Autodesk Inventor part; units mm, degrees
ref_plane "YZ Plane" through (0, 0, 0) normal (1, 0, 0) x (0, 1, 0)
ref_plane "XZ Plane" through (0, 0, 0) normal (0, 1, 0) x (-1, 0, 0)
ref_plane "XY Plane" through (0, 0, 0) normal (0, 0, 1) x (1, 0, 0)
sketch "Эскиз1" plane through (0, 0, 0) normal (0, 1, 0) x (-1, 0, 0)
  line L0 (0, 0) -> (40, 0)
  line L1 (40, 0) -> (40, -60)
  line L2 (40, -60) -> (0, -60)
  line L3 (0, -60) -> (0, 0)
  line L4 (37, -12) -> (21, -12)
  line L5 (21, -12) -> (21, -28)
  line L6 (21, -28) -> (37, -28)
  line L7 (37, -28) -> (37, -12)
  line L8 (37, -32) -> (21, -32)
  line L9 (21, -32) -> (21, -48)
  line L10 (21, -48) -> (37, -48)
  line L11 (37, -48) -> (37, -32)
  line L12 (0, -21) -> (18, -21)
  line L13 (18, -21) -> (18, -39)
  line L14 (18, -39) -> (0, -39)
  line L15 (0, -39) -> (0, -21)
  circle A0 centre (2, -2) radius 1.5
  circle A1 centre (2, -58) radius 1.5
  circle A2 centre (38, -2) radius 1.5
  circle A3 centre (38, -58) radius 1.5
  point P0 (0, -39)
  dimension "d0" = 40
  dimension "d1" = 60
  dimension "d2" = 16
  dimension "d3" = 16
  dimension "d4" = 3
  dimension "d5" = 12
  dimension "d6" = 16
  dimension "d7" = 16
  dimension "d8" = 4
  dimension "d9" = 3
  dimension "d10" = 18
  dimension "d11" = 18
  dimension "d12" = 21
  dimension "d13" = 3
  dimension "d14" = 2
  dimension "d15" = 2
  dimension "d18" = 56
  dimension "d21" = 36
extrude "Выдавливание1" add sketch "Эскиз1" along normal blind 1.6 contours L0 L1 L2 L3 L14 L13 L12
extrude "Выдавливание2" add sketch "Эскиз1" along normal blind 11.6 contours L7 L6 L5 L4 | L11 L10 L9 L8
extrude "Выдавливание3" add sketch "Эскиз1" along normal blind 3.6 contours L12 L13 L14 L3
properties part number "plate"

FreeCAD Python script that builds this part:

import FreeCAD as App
import Part
import Sketcher
from FreeCAD import Vector
Q = App.Units.Quantity


def add_polygon(sketch, points):
    """Adds a closed chain of lines whose ends are joined by coincident constraints."""
    first, n = sketch.GeometryCount, len(points)
    for a, b in zip(points, points[1:] + points[:1]):
        sketch.addGeometry(Part.LineSegment(App.Vector(*a, 0), App.Vector(*b, 0)), False)
    for i in range(n):
        sketch.addConstraint(Sketcher.Constraint("Coincident", first + i, 2, first + (i + 1) % n, 1))

doc = App.newDocument("Part")
body = doc.addObject("PartDesign::Body", "Body")

# Sketch on XZ plane
sketch1 = doc.addObject("Sketcher::SketchObject", "Sketch")
body.addObject(sketch1)
sketch1.AttachmentSupport = (doc.XZ_Plane, [""])
sketch1.MapMode = "FlatFace"
add_polygon(sketch1, [(-40, 0), (0, 0), (0, -21), (-18, -21), (-18, -39), (0, -39), (0, -60), (-40, -60)])  # lines 0-7
sketch1.addGeometry(Part.Circle(Vector(-2, -58, 0), Vector(0, 0, 1), 1.5), False)  # 8
sketch1.addGeometry(Part.Circle(Vector(-38, -58, 0), Vector(0, 0, 1), 1.5), False)  # 9
add_polygon(sketch1, [(-21, -32), (-37, -32), (-37, -48), (-21, -48)])  # lines 10-13
sketch1.addGeometry(Part.Circle(Vector(-2, -2, 0), Vector(0, 0, 1), 1.5), False)  # 14
add_polygon(sketch1, [(-21, -12), (-37, -12), (-37, -28), (-21, -28)])  # lines 15-18
sketch1.addGeometry(Part.Circle(Vector(-38, -2, 0), Vector(0, 0, 1), 1.5), False)  # 19
sketch1.addConstraint([
    Sketcher.Constraint("Horizontal", 0),
    Sketcher.Constraint("Vertical", 1),
    Sketcher.Constraint("Horizontal", 2),
    Sketcher.Constraint("Vertical", 3),
    Sketcher.Constraint("Horizontal", 4),
    Sketcher.Constraint("Vertical", 5),
    Sketcher.Constraint("Horizontal", 6),
    Sketcher.Constraint("Vertical", 7),
    Sketcher.Constraint("Horizontal", 10),
    Sketcher.Constraint("Vertical", 11),
    Sketcher.Constraint("Horizontal", 12),
    Sketcher.Constraint("Vertical", 13),
    Sketcher.Constraint("Horizontal", 15),
    Sketcher.Constraint("Vertical", 16),
    Sketcher.Constraint("Horizontal", 17),
    Sketcher.Constraint("Vertical", 18),
    Sketcher.Constraint("Coincident", 0, 2, -1, 1),
    Sketcher.Constraint("Equal", 8, 9),
    Sketcher.Constraint("Equal", 9, 14),
    Sketcher.Constraint("Equal", 14, 19),
    Sketcher.Constraint("PointOnObject", 4, 2, -2),
    Sketcher.Constraint("Horizontal", 8, 3, 9, 3),
    Sketcher.Constraint("Horizontal", 14, 3, 19, 3),
    Sketcher.Constraint("Vertical", 8, 3, 14, 3),
    Sketcher.Constraint("Vertical", 9, 3, 19, 3),
    Sketcher.Constraint("Vertical", 11, 2, 15, 2),
    Sketcher.Constraint("Vertical", 13, 2, 17, 2),
    Sketcher.Constraint("Equal", 4, 3),
    Sketcher.Constraint("Equal", 1, 5),
    Sketcher.Constraint("Equal", 17, 11),
    Sketcher.Constraint("Equal", 13, 16),
    Sketcher.Constraint("Diameter", 8, Q("3 mm")),
    Sketcher.Constraint("DistanceX", 0, 1, 0, 2, Q("40 mm")),
    Sketcher.Constraint("DistanceX", 2, 2, 2, 1, Q("18 mm")),
    Sketcher.Constraint("DistanceX", 10, 2, 10, 1, Q("16 mm")),
    Sketcher.Constraint("DistanceY", 1, 2, 1, 1, Q("21 mm")),
    Sketcher.Constraint("DistanceX", 8, 3, -1, 1, Q("2 mm")),
    Sketcher.Constraint("DistanceY", 14, 3, -1, 1, Q("2 mm")),
    Sketcher.Constraint("DistanceX", 12, 2, -1, 1, Q("21 mm")),
    Sketcher.Constraint("DistanceY", 15, 2, -1, 1, Q("12 mm")),
    Sketcher.Constraint("DistanceX", 9, 3, 8, 3, Q("36 mm")),
    Sketcher.Constraint("DistanceY", 8, 3, 14, 3, Q("56 mm")),
    Sketcher.Constraint("DistanceY", 6, 2, 11, 2, Q("12 mm")),
])
pad1 = doc.addObject("PartDesign::Pad", "Pad")
body.addObject(pad1)
pad1.Profile = sketch1
pad1.Length = 1.6
pad1.Reversed = True

# Sketch on XZ plane
sketch2 = doc.addObject("Sketcher::SketchObject", "Sketch001")
body.addObject(sketch2)
sketch2.AttachmentSupport = (doc.XZ_Plane, [""])
sketch2.MapMode = "FlatFace"
add_polygon(sketch2, [(-37, -28), (-37, -12), (-21, -12), (-21, -28)])  # lines 0-3
add_polygon(sketch2, [(-37, -48), (-37, -32), (-21, -32), (-21, -48)])  # lines 4-7
sketch2.addConstraint([
    Sketcher.Constraint("Vertical", 0),
    Sketcher.Constraint("Horizontal", 1),
    Sketcher.Constraint("Vertical", 2),
    Sketcher.Constraint("Horizontal", 3),
    Sketcher.Constraint("Vertical", 4),
    Sketcher.Constraint("Horizontal", 5),
    Sketcher.Constraint("Vertical", 6),
    Sketcher.Constraint("Horizontal", 7),
    Sketcher.Constraint("Vertical", 3, 2, 4, 2),
    Sketcher.Constraint("Vertical", 2, 2, 5, 2),
    Sketcher.Constraint("Equal", 7, 0),
    Sketcher.Constraint("Equal", 2, 4),
    Sketcher.Constraint("DistanceX", 1, 1, 1, 2, Q("16 mm")),
    Sketcher.Constraint("DistanceY", 0, 2, -1, 1, Q("12 mm")),
    Sketcher.Constraint("DistanceX", 1, 2, -1, 1, Q("21 mm")),
    Sketcher.Constraint("DistanceY", 4, 2, 3, 2, Q("4 mm")),
])
pad2 = doc.addObject("PartDesign::Pad", "Pad001")
body.addObject(pad2)
pad2.Profile = sketch2
pad2.Length = 11.6
pad2.Reversed = True

# Sketch on XZ plane
sketch3 = doc.addObject("Sketcher::SketchObject", "Sketch002")
body.addObject(sketch3)
sketch3.AttachmentSupport = (doc.XZ_Plane, [""])
sketch3.MapMode = "FlatFace"
add_polygon(sketch3, [(-18, -21), (0, -21), (0, -39), (-18, -39)])  # lines 0-3
sketch3.addConstraint([
    Sketcher.Constraint("Horizontal", 0),
    Sketcher.Constraint("Vertical", 1),
    Sketcher.Constraint("Horizontal", 2),
    Sketcher.Constraint("Vertical", 3),
    Sketcher.Constraint("PointOnObject", 0, 2, -2),
    Sketcher.Constraint("Equal", 2, 1),
    Sketcher.Constraint("DistanceX", 0, 1, 0, 2, Q("18 mm")),
    Sketcher.Constraint("DistanceY", 0, 2, -1, 1, Q("21 mm")),
])
pad3 = doc.addObject("PartDesign::Pad", "Pad002")
body.addObject(pad3)
pad3.Profile = sketch3
pad3.Length = 3.6
pad3.Reversed = True

doc.recompute()
